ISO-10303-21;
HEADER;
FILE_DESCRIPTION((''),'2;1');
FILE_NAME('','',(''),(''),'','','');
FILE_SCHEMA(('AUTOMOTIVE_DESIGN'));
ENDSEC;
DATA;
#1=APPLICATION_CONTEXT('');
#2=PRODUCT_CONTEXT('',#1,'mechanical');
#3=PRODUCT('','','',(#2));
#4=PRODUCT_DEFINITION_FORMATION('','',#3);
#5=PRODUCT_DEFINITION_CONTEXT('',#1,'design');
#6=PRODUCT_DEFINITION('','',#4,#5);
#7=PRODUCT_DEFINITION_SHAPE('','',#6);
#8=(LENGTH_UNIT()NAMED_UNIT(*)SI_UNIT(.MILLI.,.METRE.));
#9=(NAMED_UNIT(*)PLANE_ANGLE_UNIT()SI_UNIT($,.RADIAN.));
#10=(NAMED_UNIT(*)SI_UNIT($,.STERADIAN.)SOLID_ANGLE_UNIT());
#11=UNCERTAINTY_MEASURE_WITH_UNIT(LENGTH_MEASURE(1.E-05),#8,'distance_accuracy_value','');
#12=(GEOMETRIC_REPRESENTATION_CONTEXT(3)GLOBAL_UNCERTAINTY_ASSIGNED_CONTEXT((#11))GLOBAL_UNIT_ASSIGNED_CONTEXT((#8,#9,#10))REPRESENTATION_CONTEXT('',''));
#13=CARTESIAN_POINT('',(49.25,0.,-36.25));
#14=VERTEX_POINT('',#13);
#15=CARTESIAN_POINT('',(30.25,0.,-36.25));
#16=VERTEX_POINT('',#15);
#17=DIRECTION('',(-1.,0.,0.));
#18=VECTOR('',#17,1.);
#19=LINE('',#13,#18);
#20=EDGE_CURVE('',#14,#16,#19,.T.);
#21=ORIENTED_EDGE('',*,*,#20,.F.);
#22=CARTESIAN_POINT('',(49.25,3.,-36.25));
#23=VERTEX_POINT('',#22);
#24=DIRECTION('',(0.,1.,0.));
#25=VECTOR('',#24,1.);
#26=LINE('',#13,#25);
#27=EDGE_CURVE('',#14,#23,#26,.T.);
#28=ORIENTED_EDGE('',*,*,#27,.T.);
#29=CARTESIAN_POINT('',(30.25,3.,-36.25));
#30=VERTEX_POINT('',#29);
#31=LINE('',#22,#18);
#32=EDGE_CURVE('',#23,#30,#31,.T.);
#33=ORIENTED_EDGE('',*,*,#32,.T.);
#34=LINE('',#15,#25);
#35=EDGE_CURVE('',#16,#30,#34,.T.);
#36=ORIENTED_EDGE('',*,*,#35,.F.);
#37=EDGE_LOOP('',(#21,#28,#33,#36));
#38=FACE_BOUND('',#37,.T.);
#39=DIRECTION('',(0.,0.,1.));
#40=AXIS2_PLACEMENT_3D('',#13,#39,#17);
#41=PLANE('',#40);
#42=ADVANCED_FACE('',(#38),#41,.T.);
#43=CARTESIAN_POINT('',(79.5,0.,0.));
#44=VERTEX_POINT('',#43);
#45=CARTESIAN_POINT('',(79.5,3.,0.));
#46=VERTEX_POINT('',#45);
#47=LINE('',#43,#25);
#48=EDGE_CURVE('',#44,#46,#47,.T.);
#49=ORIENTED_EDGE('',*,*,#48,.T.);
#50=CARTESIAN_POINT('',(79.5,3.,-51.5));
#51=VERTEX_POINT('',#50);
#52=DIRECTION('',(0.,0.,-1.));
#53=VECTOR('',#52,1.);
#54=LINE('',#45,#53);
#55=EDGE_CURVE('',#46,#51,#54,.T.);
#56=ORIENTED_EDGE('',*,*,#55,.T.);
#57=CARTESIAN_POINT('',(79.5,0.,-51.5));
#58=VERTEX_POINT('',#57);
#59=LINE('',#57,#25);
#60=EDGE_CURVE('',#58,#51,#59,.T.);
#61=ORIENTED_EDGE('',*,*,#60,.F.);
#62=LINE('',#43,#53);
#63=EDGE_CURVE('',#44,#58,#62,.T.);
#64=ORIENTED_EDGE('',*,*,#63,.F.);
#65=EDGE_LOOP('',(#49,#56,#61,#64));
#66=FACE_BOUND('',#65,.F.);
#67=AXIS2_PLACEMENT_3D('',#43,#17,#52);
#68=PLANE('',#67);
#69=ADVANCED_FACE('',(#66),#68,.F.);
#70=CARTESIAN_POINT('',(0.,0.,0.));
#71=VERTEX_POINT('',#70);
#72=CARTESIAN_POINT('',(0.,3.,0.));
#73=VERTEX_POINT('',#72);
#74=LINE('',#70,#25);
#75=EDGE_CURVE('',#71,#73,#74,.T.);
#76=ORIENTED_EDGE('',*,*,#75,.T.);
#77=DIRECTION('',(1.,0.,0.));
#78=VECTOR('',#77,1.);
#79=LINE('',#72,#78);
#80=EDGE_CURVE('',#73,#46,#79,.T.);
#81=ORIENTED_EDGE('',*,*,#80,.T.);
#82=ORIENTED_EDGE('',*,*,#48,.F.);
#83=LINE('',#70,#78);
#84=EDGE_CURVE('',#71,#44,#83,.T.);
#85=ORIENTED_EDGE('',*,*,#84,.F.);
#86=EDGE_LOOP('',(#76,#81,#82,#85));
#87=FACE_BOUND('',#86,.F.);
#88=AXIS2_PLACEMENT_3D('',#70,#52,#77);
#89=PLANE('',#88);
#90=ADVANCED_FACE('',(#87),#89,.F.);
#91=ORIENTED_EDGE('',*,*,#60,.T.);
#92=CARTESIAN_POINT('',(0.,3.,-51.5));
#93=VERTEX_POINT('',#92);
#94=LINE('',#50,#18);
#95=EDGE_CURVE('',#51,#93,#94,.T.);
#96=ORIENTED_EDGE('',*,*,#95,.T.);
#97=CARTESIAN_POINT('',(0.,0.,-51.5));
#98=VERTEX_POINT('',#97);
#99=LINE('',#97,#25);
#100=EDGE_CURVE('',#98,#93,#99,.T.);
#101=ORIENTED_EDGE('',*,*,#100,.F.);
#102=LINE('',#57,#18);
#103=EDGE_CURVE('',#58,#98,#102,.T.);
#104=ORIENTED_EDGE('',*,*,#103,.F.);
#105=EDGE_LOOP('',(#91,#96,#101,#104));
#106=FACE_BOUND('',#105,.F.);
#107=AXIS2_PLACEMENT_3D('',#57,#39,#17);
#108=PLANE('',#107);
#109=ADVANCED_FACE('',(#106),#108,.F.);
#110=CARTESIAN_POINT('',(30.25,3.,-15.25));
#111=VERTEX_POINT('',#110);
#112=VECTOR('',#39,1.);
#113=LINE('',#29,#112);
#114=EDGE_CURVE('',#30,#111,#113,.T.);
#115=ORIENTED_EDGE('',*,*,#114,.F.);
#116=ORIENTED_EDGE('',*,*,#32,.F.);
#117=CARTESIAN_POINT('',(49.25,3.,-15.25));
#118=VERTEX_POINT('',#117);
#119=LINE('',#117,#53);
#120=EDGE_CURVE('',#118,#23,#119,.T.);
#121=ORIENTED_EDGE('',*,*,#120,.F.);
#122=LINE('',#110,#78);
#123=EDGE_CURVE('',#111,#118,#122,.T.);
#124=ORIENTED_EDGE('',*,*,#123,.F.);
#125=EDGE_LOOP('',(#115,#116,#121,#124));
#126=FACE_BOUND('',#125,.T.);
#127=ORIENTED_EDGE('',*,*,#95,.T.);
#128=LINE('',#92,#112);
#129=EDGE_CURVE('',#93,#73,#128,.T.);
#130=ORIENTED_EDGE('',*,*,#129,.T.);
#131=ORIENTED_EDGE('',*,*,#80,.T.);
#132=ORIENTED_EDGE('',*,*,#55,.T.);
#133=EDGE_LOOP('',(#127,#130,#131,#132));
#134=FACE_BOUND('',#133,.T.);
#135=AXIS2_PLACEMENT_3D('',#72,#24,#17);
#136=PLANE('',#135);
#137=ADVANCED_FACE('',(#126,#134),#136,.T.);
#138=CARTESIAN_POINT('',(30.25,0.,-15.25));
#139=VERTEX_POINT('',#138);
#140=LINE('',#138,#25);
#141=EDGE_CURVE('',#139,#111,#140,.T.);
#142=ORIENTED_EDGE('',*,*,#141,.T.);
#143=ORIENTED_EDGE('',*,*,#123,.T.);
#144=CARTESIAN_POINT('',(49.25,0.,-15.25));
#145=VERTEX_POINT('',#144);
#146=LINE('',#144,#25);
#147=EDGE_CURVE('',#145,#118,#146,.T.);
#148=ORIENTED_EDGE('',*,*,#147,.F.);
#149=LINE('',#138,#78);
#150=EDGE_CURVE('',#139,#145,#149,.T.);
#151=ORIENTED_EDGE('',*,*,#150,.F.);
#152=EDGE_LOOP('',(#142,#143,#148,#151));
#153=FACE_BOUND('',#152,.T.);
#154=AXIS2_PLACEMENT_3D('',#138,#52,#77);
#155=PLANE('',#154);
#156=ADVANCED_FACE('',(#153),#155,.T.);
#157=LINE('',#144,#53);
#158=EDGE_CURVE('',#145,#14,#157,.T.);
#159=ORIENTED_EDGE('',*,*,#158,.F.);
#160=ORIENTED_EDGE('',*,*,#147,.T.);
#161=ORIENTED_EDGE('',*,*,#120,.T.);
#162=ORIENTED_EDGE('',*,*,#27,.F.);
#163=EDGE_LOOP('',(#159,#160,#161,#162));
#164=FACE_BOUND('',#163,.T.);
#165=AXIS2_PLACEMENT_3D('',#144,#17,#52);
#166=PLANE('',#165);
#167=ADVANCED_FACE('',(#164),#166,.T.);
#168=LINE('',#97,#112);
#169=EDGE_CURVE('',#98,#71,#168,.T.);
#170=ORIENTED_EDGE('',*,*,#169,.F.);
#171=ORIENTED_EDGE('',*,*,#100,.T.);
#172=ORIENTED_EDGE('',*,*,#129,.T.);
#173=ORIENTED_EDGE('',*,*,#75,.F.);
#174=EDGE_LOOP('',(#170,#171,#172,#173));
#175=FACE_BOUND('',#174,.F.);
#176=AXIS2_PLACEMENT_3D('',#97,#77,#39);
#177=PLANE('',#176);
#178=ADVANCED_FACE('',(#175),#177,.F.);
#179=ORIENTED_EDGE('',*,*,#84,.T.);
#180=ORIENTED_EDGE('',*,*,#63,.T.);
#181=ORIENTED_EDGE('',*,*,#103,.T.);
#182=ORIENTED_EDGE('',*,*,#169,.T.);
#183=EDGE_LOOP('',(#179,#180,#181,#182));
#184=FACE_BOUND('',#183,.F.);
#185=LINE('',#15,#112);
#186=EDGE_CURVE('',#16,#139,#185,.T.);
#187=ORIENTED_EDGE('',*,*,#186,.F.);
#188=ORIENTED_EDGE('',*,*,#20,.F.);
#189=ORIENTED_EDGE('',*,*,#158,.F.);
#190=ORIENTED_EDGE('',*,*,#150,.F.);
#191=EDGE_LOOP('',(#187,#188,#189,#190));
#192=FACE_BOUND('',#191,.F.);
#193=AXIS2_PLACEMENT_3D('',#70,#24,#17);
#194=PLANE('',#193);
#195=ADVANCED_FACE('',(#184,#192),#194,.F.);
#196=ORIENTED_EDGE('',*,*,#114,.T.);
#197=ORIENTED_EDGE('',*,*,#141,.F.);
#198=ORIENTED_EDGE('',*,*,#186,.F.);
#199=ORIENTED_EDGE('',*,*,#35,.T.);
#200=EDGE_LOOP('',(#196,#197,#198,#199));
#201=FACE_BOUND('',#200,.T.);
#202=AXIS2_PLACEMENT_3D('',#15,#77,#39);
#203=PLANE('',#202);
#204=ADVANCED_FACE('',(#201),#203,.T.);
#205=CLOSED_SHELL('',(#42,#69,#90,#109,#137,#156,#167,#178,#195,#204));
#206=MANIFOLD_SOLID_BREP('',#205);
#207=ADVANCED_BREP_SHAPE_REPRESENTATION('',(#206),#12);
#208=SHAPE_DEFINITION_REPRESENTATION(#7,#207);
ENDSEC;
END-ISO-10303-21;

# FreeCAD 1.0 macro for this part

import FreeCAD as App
import Part
import Sketcher


def add_polygon(sketch, points):
    """Adds a closed chain of lines whose ends are joined by coincident constraints."""
    first, n = sketch.GeometryCount, len(points)
    for a, b in zip(points, points[1:] + points[:1]):
        sketch.addGeometry(Part.LineSegment(App.Vector(*a, 0), App.Vector(*b, 0)), False)
    for i in range(n):
        sketch.addConstraint(Sketcher.Constraint("Coincident", first + i, 2, first + (i + 1) % n, 1))

doc = App.newDocument("Part")
body = doc.addObject("PartDesign::Body", "Body")

# Sketch on XZ plane
sketch1 = body.newObject("Sketcher::SketchObject", "Sketch")
sketch1.AttachmentSupport = (doc.getObject("XZ_Plane"), [""])
sketch1.MapMode = "FlatFace"
add_polygon(sketch1, [(0, -52), (0, 0), (80, 0), (80, -52)])  # lines 0-3
add_polygon(sketch1, [(49, -15), (30, -15), (30, -36), (49, -36)])  # lines 4-7
sketch1.addConstraint([
    Sketcher.Constraint("Vertical", 0),
    Sketcher.Constraint("Horizontal", 1),
    Sketcher.Constraint("Vertical", 2),
    Sketcher.Constraint("Horizontal", 3),
    Sketcher.Constraint("Horizontal", 4),
    Sketcher.Constraint("Vertical", 5),
    Sketcher.Constraint("Horizontal", 6),
    Sketcher.Constraint("Vertical", 7),
    Sketcher.Constraint("Coincident", 0, 2, -1, 1),
    Sketcher.Constraint("DistanceX", 4, 2, 4, 1, 19.0),
    Sketcher.Constraint("DistanceY", 5, 2, 5, 1, 21.0),
    Sketcher.Constraint("DistanceX", 1, 1, 1, 2, 79.5),
    Sketcher.Constraint("DistanceY", 0, 1, 0, 2, 51.5),
    Sketcher.Constraint("DistanceX", -1, 1, 4, 2, 30.25),
    Sketcher.Constraint("DistanceY", 4, 2, -1, 1, 15.25),
])
pad1 = body.newObject("PartDesign::Pad", "Pad")
pad1.Profile = sketch1
pad1.Length = 3
pad1.Reversed = True

doc.recompute()
